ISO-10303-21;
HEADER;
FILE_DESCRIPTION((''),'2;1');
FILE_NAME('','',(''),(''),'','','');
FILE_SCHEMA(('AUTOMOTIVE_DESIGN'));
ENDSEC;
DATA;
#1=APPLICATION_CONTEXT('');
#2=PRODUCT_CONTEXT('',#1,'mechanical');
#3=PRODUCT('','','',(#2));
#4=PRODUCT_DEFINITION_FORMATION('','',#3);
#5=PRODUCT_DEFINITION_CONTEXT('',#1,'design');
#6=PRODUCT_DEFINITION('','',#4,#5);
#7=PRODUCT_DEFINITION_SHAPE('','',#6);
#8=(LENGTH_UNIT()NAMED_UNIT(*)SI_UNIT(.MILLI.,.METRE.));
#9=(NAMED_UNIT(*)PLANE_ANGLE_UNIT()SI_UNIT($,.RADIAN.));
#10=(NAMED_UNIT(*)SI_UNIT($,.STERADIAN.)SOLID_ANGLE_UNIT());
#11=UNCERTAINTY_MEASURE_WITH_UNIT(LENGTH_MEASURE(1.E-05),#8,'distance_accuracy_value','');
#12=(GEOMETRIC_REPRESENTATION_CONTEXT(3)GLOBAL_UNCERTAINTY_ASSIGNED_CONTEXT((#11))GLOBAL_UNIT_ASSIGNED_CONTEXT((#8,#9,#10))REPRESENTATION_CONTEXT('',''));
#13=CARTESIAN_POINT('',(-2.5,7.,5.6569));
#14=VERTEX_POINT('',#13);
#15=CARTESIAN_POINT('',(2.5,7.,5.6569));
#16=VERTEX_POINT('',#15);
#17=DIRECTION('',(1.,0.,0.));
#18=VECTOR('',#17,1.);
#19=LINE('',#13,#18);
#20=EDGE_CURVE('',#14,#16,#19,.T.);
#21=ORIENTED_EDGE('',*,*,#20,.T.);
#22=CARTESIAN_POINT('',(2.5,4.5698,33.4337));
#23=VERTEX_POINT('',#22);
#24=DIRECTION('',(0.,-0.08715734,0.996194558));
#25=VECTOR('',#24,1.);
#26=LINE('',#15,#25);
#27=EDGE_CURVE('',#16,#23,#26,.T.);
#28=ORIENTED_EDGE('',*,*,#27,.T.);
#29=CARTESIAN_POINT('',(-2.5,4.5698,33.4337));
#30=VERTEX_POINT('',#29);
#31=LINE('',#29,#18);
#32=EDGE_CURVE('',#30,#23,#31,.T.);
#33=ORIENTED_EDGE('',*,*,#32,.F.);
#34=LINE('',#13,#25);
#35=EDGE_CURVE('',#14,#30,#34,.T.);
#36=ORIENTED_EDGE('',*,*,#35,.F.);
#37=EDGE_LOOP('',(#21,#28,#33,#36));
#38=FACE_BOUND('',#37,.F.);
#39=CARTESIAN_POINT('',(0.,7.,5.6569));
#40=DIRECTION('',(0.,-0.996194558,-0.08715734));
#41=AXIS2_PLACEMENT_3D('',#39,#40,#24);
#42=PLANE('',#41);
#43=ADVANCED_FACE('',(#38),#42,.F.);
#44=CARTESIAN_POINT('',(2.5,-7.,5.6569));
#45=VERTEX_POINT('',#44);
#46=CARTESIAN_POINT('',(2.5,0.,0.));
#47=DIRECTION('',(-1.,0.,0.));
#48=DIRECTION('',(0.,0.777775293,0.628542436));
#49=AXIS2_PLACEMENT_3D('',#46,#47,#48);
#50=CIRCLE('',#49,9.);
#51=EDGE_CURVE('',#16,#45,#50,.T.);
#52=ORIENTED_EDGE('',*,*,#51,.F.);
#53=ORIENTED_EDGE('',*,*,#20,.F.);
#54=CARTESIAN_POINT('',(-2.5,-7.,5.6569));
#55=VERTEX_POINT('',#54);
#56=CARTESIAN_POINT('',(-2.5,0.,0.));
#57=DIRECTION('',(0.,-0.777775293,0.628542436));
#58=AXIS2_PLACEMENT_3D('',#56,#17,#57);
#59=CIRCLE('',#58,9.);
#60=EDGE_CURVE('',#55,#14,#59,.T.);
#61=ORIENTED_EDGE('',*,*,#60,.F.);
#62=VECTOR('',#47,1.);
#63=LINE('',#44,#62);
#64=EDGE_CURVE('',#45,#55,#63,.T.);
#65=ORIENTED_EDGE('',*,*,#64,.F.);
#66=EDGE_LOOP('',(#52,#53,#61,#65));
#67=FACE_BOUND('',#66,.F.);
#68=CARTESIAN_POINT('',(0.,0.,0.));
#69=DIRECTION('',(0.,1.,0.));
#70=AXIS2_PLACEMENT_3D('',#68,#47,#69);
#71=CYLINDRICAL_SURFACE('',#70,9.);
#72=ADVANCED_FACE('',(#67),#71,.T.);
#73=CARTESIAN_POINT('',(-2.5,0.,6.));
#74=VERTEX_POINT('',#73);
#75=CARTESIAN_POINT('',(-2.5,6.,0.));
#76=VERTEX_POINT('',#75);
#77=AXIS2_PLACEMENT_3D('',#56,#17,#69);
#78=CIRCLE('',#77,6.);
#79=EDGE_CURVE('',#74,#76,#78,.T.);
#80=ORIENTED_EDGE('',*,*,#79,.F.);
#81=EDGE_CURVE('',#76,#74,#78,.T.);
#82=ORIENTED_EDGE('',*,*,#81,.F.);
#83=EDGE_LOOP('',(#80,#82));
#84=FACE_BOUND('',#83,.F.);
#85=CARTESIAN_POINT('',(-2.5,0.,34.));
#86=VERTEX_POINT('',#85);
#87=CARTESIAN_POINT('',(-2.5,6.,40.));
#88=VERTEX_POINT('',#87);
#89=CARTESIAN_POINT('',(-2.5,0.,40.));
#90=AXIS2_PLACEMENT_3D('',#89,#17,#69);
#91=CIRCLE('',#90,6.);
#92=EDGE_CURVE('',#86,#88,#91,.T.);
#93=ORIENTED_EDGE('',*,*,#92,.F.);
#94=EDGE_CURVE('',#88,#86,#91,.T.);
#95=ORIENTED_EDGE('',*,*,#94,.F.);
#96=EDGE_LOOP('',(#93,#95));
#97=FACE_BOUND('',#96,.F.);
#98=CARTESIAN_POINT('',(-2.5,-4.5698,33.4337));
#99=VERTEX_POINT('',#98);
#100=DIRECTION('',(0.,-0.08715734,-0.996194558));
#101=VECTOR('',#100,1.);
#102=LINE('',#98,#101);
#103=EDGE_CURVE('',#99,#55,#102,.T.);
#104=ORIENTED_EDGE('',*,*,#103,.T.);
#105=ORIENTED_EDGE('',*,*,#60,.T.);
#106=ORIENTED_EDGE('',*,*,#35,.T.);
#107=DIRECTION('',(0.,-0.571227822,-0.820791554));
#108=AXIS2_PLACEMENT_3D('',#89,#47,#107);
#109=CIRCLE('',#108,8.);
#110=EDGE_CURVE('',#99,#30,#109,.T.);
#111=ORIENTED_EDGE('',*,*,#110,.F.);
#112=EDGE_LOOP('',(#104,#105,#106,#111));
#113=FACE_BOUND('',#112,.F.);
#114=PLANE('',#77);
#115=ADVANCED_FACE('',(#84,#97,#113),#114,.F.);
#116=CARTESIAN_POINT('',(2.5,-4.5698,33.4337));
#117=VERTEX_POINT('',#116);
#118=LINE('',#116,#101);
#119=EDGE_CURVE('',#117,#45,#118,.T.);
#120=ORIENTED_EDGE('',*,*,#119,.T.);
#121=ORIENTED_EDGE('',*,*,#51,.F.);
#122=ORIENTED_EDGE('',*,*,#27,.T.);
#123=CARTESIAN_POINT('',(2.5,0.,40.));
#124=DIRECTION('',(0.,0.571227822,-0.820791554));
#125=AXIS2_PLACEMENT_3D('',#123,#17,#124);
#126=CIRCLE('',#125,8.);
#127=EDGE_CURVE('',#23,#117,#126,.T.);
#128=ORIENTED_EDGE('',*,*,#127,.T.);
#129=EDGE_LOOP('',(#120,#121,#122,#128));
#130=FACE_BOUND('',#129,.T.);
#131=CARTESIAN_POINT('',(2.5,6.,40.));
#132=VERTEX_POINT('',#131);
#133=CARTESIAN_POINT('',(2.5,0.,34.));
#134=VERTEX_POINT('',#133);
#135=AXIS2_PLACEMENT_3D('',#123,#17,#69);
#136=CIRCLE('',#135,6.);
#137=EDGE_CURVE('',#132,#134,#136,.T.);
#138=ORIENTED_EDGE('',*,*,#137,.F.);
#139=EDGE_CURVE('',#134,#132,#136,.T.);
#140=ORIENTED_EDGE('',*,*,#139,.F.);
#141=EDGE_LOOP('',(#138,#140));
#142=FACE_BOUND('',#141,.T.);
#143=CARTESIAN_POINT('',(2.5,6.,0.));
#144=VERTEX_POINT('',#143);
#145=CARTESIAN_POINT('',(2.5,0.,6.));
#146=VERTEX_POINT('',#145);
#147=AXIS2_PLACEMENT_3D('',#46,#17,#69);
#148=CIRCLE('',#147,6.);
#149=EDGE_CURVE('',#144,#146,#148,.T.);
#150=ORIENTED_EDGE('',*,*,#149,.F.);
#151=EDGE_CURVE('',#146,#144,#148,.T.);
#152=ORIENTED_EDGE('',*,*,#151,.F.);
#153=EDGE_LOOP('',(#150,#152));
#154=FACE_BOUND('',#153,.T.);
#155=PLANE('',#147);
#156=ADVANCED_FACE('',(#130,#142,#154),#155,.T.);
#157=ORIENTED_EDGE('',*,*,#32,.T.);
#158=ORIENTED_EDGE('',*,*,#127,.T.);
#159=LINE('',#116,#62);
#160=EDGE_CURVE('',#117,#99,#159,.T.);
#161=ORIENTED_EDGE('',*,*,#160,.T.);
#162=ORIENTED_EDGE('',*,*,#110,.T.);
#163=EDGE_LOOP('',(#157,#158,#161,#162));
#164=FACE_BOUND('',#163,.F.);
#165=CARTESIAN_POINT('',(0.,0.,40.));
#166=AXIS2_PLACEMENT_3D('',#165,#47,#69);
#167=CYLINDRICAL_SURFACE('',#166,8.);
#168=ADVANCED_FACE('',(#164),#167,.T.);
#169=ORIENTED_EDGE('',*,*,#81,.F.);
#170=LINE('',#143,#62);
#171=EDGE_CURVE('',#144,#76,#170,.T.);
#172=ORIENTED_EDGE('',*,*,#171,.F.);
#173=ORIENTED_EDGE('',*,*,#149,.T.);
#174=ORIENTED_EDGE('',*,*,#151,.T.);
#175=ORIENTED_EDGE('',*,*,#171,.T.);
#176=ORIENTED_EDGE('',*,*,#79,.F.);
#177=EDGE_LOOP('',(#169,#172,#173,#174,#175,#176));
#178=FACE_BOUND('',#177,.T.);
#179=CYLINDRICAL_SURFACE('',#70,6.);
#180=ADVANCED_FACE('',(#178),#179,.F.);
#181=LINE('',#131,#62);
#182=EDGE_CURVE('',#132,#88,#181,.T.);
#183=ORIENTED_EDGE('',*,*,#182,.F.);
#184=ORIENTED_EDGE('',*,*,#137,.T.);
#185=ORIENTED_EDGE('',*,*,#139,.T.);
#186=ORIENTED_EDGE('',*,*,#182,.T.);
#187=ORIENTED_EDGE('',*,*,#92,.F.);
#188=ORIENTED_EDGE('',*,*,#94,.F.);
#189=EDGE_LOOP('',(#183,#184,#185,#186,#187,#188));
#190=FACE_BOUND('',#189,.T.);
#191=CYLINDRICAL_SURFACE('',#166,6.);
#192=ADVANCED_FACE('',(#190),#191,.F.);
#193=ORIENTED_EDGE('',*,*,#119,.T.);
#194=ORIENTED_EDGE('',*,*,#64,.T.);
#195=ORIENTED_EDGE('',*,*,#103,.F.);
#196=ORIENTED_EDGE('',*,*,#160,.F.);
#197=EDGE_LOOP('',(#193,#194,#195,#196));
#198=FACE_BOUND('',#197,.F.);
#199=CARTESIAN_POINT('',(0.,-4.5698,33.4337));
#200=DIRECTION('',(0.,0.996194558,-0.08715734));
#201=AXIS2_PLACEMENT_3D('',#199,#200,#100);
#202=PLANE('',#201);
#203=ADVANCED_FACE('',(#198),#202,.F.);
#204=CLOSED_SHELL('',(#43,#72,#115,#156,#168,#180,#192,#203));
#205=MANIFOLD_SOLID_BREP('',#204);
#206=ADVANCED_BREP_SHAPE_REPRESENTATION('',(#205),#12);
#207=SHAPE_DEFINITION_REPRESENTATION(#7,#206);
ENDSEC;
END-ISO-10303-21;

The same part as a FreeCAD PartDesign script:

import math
import FreeCAD as App
import Part
import Sketcher
Q = App.Units.Quantity

doc = App.newDocument("Part")
body = doc.addObject("PartDesign::Body", "Body")

# Sketch on YZ plane
sketch1 = doc.addObject("Sketcher::SketchObject", "Sketch")
body.addObject(sketch1)
sketch1.AttachmentSupport = (doc.YZ_Plane, [""])
sketch1.MapMode = "FlatFace"
sketch1.addGeometry([
    Part.LineSegment(App.Vector(7, 5.6569, 0), App.Vector(4.5698, 33.4337, 0)),  # 0
    Part.ArcOfCircle(Part.Circle(App.Vector(0, 40, 0), App.Vector(0, 0, 1), 8), math.radians(-55.16411), math.radians(235.16411)),  # 1
    Part.LineSegment(App.Vector(-4.5698, 33.4337, 0), App.Vector(-7, 5.6569, 0)),  # 2
    Part.ArcOfCircle(Part.Circle(App.Vector(0, 0, 0), App.Vector(0, 0, 1), 9), math.radians(141.057332), math.radians(398.942668)),  # 3
    Part.Circle(App.Vector(0, 0, 0), App.Vector(0, 0, 1), 6),  # 4
    Part.Circle(App.Vector(0, 40, 0), App.Vector(0, 0, 1), 6),  # 5
], False)
sketch1.addConstraint([
    Sketcher.Constraint("Coincident", 0, 2, 1, 1),
    Sketcher.Constraint("Coincident", 1, 2, 2, 1),
    Sketcher.Constraint("Coincident", 2, 2, 3, 1),
    Sketcher.Constraint("Coincident", 3, 2, 0, 1),
    Sketcher.Constraint("Coincident", 3, 3, -1, 1),
    Sketcher.Constraint("Coincident", 4, 3, -1, 1),
    Sketcher.Constraint("Coincident", 5, 3, 1, 3),
    Sketcher.Constraint("Equal", 4, 5),
    Sketcher.Constraint("Symmetric", 0, 2, 1, 2, -2),
    Sketcher.Constraint("Horizontal", 2, 2, 3, 2),
    Sketcher.Constraint("Diameter", 4, 12.0),
    Sketcher.Constraint("Radius", 1, 8.0),
    Sketcher.Constraint("Radius", 3, 9.0),
    Sketcher.Constraint("DistanceY", -1, 1, 1, 3, 40.0),
    Sketcher.Constraint("DistanceX", 2, 2, -1, 1, 7.0),
    Sketcher.Constraint("Angle", 0, Q("95 deg")),
])
pad1 = doc.addObject("PartDesign::Pad", "Pad")
body.addObject(pad1)
pad1.Profile = sketch1
pad1.Length = 5
pad1.Midplane = True

doc.recompute()
